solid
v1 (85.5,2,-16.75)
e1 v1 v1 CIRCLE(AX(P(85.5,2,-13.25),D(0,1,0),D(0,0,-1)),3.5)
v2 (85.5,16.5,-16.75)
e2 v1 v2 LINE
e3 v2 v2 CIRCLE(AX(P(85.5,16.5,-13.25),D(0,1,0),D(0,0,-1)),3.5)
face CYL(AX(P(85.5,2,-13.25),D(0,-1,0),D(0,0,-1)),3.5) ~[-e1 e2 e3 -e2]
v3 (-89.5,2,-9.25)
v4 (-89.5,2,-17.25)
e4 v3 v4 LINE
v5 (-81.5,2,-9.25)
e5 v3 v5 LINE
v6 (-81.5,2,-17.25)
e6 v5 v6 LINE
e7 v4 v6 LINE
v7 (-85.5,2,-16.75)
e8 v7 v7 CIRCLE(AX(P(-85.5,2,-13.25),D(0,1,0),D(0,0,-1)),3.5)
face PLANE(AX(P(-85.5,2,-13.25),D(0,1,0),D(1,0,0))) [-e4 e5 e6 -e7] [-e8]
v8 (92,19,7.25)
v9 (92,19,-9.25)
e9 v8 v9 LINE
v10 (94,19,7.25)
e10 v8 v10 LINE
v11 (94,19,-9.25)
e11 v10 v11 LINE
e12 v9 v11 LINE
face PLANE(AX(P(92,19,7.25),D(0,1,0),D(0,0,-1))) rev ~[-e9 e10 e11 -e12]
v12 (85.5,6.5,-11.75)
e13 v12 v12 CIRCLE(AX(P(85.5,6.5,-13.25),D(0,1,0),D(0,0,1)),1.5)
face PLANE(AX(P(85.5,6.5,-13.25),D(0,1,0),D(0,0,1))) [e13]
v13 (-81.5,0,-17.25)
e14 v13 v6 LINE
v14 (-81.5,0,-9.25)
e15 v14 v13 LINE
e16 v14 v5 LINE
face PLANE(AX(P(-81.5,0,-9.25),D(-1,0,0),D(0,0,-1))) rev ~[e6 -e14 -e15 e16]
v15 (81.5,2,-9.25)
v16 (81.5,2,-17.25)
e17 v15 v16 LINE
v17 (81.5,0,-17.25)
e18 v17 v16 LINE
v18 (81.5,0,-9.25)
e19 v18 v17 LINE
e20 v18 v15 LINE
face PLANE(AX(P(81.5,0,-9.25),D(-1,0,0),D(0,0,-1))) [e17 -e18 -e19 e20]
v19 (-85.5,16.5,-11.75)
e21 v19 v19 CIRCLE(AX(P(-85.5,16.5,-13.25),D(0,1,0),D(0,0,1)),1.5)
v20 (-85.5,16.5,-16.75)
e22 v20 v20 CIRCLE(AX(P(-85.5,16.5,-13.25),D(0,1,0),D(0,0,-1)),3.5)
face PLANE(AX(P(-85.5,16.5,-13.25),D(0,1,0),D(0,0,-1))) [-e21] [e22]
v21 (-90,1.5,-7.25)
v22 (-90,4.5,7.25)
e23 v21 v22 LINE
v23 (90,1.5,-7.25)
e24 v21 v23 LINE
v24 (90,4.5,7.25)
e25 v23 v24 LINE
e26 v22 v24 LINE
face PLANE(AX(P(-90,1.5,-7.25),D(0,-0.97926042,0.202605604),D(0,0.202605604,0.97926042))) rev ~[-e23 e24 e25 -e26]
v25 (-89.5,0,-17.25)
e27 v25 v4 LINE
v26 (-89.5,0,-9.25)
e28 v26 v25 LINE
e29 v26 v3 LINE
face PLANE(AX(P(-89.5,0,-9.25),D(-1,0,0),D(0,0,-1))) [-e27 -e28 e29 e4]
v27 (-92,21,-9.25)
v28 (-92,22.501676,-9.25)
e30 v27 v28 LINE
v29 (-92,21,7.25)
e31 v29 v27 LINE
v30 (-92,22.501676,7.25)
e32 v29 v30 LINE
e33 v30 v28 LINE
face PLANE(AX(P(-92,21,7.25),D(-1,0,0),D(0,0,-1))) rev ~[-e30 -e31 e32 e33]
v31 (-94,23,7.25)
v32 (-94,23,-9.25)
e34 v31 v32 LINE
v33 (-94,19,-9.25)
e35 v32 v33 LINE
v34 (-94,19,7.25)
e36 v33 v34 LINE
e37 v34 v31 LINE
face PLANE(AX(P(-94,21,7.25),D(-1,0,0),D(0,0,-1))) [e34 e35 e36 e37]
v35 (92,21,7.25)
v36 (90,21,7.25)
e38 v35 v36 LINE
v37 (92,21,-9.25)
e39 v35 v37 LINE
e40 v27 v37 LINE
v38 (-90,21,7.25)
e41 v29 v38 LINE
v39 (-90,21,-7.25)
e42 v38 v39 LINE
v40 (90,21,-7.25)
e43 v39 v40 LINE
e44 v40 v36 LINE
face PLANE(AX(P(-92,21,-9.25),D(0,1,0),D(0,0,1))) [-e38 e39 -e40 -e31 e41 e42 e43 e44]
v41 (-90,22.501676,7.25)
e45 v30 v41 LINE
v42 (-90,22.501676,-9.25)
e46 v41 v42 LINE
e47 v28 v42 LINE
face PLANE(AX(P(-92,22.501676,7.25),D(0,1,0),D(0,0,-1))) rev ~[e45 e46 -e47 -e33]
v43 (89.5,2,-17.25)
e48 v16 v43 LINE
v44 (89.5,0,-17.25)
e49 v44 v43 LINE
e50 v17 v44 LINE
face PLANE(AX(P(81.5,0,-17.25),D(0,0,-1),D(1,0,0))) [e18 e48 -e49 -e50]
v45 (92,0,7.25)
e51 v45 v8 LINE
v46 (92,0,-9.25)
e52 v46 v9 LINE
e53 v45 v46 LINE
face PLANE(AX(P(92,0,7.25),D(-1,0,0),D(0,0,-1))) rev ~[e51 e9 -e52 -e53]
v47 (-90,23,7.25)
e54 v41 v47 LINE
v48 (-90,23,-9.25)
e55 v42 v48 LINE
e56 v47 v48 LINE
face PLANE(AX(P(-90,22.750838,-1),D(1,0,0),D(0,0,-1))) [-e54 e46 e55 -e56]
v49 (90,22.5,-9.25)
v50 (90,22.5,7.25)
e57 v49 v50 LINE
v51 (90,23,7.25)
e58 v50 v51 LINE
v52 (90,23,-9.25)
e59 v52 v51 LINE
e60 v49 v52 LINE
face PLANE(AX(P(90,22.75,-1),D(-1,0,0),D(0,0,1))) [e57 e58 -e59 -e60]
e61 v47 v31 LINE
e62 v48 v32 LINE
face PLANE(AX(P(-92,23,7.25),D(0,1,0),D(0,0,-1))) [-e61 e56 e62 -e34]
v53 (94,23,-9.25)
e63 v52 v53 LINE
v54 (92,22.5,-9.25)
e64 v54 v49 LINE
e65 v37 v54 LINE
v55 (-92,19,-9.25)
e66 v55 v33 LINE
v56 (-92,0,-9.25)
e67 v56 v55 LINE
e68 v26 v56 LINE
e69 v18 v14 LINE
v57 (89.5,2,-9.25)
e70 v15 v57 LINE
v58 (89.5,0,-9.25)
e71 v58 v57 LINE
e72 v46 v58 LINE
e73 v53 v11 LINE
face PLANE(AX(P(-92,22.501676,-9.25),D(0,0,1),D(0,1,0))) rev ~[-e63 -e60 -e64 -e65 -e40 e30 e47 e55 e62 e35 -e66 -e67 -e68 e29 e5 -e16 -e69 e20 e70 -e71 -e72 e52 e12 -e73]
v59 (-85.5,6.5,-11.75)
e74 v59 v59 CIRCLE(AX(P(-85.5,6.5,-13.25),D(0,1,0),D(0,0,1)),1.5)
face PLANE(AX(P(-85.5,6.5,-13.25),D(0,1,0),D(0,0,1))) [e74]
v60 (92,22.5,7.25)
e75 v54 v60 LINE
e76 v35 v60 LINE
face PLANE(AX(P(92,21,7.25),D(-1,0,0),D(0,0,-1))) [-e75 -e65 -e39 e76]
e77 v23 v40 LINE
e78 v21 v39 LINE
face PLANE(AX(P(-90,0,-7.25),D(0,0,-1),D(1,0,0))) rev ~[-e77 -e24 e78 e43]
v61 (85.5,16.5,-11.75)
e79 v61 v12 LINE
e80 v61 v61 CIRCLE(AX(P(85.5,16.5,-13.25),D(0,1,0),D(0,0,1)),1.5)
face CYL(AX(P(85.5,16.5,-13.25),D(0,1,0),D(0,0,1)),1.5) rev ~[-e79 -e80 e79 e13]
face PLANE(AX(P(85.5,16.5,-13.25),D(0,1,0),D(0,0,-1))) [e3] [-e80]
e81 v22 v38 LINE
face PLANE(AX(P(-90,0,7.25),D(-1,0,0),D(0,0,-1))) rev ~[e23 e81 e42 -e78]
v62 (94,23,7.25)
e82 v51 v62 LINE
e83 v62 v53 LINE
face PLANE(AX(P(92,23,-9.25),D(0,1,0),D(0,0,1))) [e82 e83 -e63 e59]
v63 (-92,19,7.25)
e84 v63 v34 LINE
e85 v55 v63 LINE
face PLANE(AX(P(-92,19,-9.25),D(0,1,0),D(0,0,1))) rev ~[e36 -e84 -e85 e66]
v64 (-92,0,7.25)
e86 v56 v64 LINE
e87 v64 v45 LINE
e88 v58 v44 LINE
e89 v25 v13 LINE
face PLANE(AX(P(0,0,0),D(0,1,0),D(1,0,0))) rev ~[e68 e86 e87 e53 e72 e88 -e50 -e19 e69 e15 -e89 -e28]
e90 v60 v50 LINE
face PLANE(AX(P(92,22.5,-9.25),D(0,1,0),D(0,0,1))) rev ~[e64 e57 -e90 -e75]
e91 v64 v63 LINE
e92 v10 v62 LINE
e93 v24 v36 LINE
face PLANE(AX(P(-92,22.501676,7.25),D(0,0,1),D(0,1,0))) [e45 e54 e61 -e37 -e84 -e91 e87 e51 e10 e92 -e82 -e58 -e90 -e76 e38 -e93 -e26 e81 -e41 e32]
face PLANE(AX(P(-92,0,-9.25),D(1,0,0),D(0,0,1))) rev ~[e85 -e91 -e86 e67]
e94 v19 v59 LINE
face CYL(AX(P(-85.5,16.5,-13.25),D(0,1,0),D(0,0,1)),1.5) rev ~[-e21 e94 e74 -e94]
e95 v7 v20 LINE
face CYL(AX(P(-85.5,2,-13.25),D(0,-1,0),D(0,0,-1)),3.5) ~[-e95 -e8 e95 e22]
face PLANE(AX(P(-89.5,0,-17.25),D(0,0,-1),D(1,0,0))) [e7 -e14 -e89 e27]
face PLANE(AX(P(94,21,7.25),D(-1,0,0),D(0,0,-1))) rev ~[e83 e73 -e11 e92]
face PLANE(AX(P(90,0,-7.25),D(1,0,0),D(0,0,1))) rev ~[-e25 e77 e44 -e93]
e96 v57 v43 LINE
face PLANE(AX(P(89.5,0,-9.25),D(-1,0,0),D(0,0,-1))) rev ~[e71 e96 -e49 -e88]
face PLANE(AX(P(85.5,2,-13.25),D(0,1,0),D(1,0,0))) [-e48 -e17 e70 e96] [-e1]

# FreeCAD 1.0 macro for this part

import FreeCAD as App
import Part
import Sketcher
from FreeCAD import Vector
Q = App.Units.Quantity


def add_polygon(sketch, points):
    """Adds a closed chain of lines whose ends are joined by coincident constraints."""
    first, n = sketch.GeometryCount, len(points)
    for a, b in zip(points, points[1:] + points[:1]):
        sketch.addGeometry(Part.LineSegment(App.Vector(*a, 0), App.Vector(*b, 0)), False)
    for i in range(n):
        sketch.addConstraint(Sketcher.Constraint("Coincident", first + i, 2, first + (i + 1) % n, 1))

doc = App.newDocument("Part")
body = doc.addObject("PartDesign::Body", "Body")

# Sketch on XZ plane
sketch1 = body.newObject("Sketcher::SketchObject", "Sketch")
sketch1.AttachmentSupport = (doc.getObject("XZ_Plane"), [""])
sketch1.MapMode = "FlatFace"
add_polygon(sketch1, [(-90, -7.25), (-90, 7.25), (90, 7.25), (90, -7.25)])  # lines 0-3
sketch1.addConstraint(Sketcher.Constraint("Vertical", 0))
sketch1.addConstraint(Sketcher.Constraint("Horizontal", 1))
sketch1.addConstraint(Sketcher.Constraint("Vertical", 2))
sketch1.addConstraint(Sketcher.Constraint("Horizontal", 3))
sketch1.addConstraint(Sketcher.Constraint("Symmetric", 0, 2, 2, 2, -1, 1))
sketch1.addConstraint(Sketcher.Constraint("DistanceX", 1, 1, 1, 2, Q("180 mm")))
sketch1.addConstraint(Sketcher.Constraint("DistanceY", 0, 1, 0, 2, Q("14.5 mm")))
pad1 = body.newObject("PartDesign::Pad", "Pad")
pad1.Profile = sketch1
pad1.Length = 4.5
pad1.Reversed = True

# Sketch on YZ plane
sketch2 = body.newObject("Sketcher::SketchObject", "Sketch001")
sketch2.AttachmentSupport = (doc.getObject("YZ_Plane"), [""])
sketch2.MapMode = "FlatFace"
sketch2.AttachmentOffset = App.Placement(Vector(0, 0, -90), App.Rotation())
add_polygon(sketch2, [(4.5, -7.25), (1.5, -7.25), (4.5, 7.25)])  # lines 0-2
sketch2.addConstraint(Sketcher.Constraint("Horizontal", 0))
sketch2.addConstraint(Sketcher.Constraint("Vertical", 2))
sketch2.addConstraint(Sketcher.Constraint("DistanceX", 0, 2, 0, 1, Q("3 mm")))
sketch2.addConstraint(Sketcher.Constraint("DistanceY", 2, 2, 2, 1, Q("14.5 mm")))
sketch2.addConstraint(Sketcher.Constraint("DistanceX", -1, 1, 0, 2, Q("1.5 mm")))
sketch2.addConstraint(Sketcher.Constraint("DistanceY", 0, 2, -1, 1, Q("7.25 mm")))
pocket1 = body.newObject("PartDesign::Pocket", "Pocket")
pocket1.Profile = sketch2
pocket1.Type = "ThroughAll"
pocket1.Reversed = True

# Sketch on XZ plane
sketch3 = body.newObject("Sketcher::SketchObject", "Sketch002")
sketch3.AttachmentSupport = (doc.getObject("XZ_Plane"), [""])
sketch3.MapMode = "FlatFace"
add_polygon(sketch3, [(-90, -7.25), (90, -7.25), (90, 7.25), (92, 7.25), (92, -9.25), (-92, -9.25), (-92, 7.25), (-90, 7.25)])  # lines 0-7
sketch3.addConstraint(Sketcher.Constraint("Horizontal", 0))
sketch3.addConstraint(Sketcher.Constraint("Vertical", 1))
sketch3.addConstraint(Sketcher.Constraint("Horizontal", 2))
sketch3.addConstraint(Sketcher.Constraint("Vertical", 3))
sketch3.addConstraint(Sketcher.Constraint("Horizontal", 4))
sketch3.addConstraint(Sketcher.Constraint("Vertical", 5))
sketch3.addConstraint(Sketcher.Constraint("Horizontal", 6))
sketch3.addConstraint(Sketcher.Constraint("Vertical", 7))
sketch3.addConstraint(Sketcher.Constraint("Symmetric", 0, 2, 6, 2, -1, 1))
sketch3.addConstraint(Sketcher.Constraint("Symmetric", 2, 2, 5, 2, -2))
sketch3.addConstraint(Sketcher.Constraint("DistanceX", 0, 1, 0, 2, Q("180 mm")))
sketch3.addConstraint(Sketcher.Constraint("DistanceX", 2, 1, 2, 2, Q("2 mm")))
sketch3.addConstraint(Sketcher.Constraint("DistanceY", 1, 1, 1, 2, Q("14.5 mm")))
sketch3.addConstraint(Sketcher.Constraint("DistanceY", 3, 2, 3, 1, Q("16.5 mm")))
pad2 = body.newObject("PartDesign::Pad", "Pad001")
pad2.Profile = sketch3
pad2.Length = 21
pad2.Reversed = True

# Sketch on XZ plane
sketch4 = body.newObject("Sketcher::SketchObject", "Sketch003")
sketch4.AttachmentSupport = (doc.getObject("XZ_Plane"), [""])
sketch4.MapMode = "FlatFace"
add_polygon(sketch4, [(-89.5, -17.25), (-89.5, -9.25), (-81.5, -9.25), (-81.5, -17.25)])  # lines 0-3
add_polygon(sketch4, [(81.5, -17.25), (81.5, -9.25), (89.5, -9.25), (89.5, -17.25)])  # lines 4-7
sketch4.addConstraint(Sketcher.Constraint("Vertical", 0))
sketch4.addConstraint(Sketcher.Constraint("Horizontal", 1))
sketch4.addConstraint(Sketcher.Constraint("Vertical", 2))
sketch4.addConstraint(Sketcher.Constraint("Horizontal", 3))
sketch4.addConstraint(Sketcher.Constraint("Vertical", 4))
sketch4.addConstraint(Sketcher.Constraint("Horizontal", 5))
sketch4.addConstraint(Sketcher.Constraint("Vertical", 6))
sketch4.addConstraint(Sketcher.Constraint("Horizontal", 7))
sketch4.addConstraint(Sketcher.Constraint("Symmetric", 1, 2, 4, 2, -2))
sketch4.addConstraint(Sketcher.Constraint("Symmetric", 3, 2, 6, 2, -2))
sketch4.addConstraint(Sketcher.Constraint("Equal", 7, 0))
sketch4.addConstraint(Sketcher.Constraint("DistanceX", 1, 1, 1, 2, Q("8 mm")))
sketch4.addConstraint(Sketcher.Constraint("DistanceX", 1, 2, 4, 2, Q("163 mm")))
sketch4.addConstraint(Sketcher.Constraint("DistanceY", 0, 2, -1, 1, Q("9.25 mm")))
pad3 = body.newObject("PartDesign::Pad", "Pad002")
pad3.Profile = sketch4
pad3.Length = 2
pad3.Reversed = True

# Sketch on XZ plane
sketch5 = body.newObject("Sketcher::SketchObject", "Sketch004")
sketch5.AttachmentSupport = (doc.getObject("XZ_Plane"), [""])
sketch5.MapMode = "FlatFace"
sketch5.AttachmentOffset = App.Placement(Vector(0, 0, -2), App.Rotation())
sketch5.addGeometry(Part.Circle(Vector(-85.5, -13.25, 0), Vector(0, 0, 1), 3.5), False)
sketch5.addGeometry(Part.Circle(Vector(85.5, -13.25, 0), Vector(0, 0, 1), 3.5), False)
sketch5.addConstraint(Sketcher.Constraint("Equal", 0, 1))
sketch5.addConstraint(Sketcher.Constraint("Symmetric", 0, 3, 1, 3, -2))
sketch5.addConstraint(Sketcher.Constraint("Diameter", 0, Q("7 mm")))
sketch5.addConstraint(Sketcher.Constraint("DistanceX", 0, 3, 1, 3, Q("171 mm")))
sketch5.addConstraint(Sketcher.Constraint("DistanceY", 0, 3, -1, 1, Q("13.25 mm")))
pad4 = body.newObject("PartDesign::Pad", "Pad003")
pad4.Profile = sketch5
pad4.Length = 14.5
pad4.Reversed = True

# Sketch on XZ plane
sketch6 = body.newObject("Sketcher::SketchObject", "Sketch005")
sketch6.AttachmentSupport = (doc.getObject("XZ_Plane"), [""])
sketch6.MapMode = "FlatFace"
sketch6.AttachmentOffset = App.Placement(Vector(0, 0, -16.5), App.Rotation())
sketch6.addGeometry(Part.Circle(Vector(85.5, -13.25, 0), Vector(0, 0, 1), 1.5), False)
sketch6.addGeometry(Part.Circle(Vector(-85.5, -13.25, 0), Vector(0, 0, 1), 1.5), False)
sketch6.addConstraint(Sketcher.Constraint("Equal", 0, 1))
sketch6.addConstraint(Sketcher.Constraint("Symmetric", 0, 3, 1, 3, -2))
sketch6.addConstraint(Sketcher.Constraint("Diameter", 0, Q("3 mm")))
sketch6.addConstraint(Sketcher.Constraint("DistanceX", 1, 3, 0, 3, Q("171 mm")))
sketch6.addConstraint(Sketcher.Constraint("DistanceY", 0, 3, -1, 1, Q("13.25 mm")))
pocket2 = body.newObject("PartDesign::Pocket", "Pocket001")
pocket2.Profile = sketch6
pocket2.Length = 10
pocket2.Reversed = True

# Sketch on YZ plane
sketch7 = body.newObject("Sketcher::SketchObject", "Sketch006")
sketch7.AttachmentSupport = (doc.getObject("YZ_Plane"), [""])
sketch7.MapMode = "FlatFace"
sketch7.AttachmentOffset = App.Placement(Vector(0, 0, 92), App.Rotation())
add_polygon(sketch7, [(21, 7.25), (19, 7.25), (19, -9.25), (21, -9.25)])  # lines 0-3
sketch7.addConstraint(Sketcher.Constraint("Horizontal", 0))
sketch7.addConstraint(Sketcher.Constraint("Vertical", 1))
sketch7.addConstraint(Sketcher.Constraint("Horizontal", 2))
sketch7.addConstraint(Sketcher.Constraint("Vertical", 3))
sketch7.addConstraint(Sketcher.Constraint("DistanceX", 0, 2, 0, 1, Q("2 mm")))
sketch7.addConstraint(Sketcher.Constraint("DistanceY", 1, 2, 1, 1, Q("16.5 mm")))
sketch7.addConstraint(Sketcher.Constraint("DistanceX", -1, 1, 0, 2, Q("19 mm")))
sketch7.addConstraint(Sketcher.Constraint("DistanceY", -1, 1, 0, 2, Q("7.25 mm")))
pad5 = body.newObject("PartDesign::Pad", "Pad004")
pad5.Profile = sketch7
pad5.Length = 2

# Sketch on XZ plane
sketch8 = body.newObject("Sketcher::SketchObject", "Sketch007")
sketch8.AttachmentSupport = (doc.getObject("XZ_Plane"), [""])
sketch8.MapMode = "FlatFace"
sketch8.AttachmentOffset = App.Placement(Vector(0, 0, -21), App.Rotation())
add_polygon(sketch8, [(92, -9.25), (92, 7.25), (94, 7.25), (94, -9.25)])  # lines 0-3
sketch8.addConstraint(Sketcher.Constraint("Vertical", 0))
sketch8.addConstraint(Sketcher.Constraint("Horizontal", 1))
sketch8.addConstraint(Sketcher.Constraint("Vertical", 2))
sketch8.addConstraint(Sketcher.Constraint("Horizontal", 3))
sketch8.addConstraint(Sketcher.Constraint("DistanceX", 1, 1, 1, 2, Q("2 mm")))
sketch8.addConstraint(Sketcher.Constraint("DistanceY", 0, 1, 0, 2, Q("16.5 mm")))
sketch8.addConstraint(Sketcher.Constraint("DistanceX", -1, 1, 0, 2, Q("92 mm")))
sketch8.addConstraint(Sketcher.Constraint("DistanceY", -1, 1, 0, 2, Q("7.25 mm")))
pad6 = body.newObject("PartDesign::Pad", "Pad005")
pad6.Profile = sketch8
pad6.Length = 2
pad6.Reversed = True

# Sketch on YZ plane
sketch9 = body.newObject("Sketcher::SketchObject", "Sketch008")
sketch9.AttachmentSupport = (doc.getObject("YZ_Plane"), [""])
sketch9.MapMode = "FlatFace"
sketch9.AttachmentOffset = App.Placement(Vector(0, 0, 92), App.Rotation())
add_polygon(sketch9, [(23, -9.25), (22.5, -9.25), (22.5, 7.25), (23, 7.25)])  # lines 0-3
sketch9.addConstraint(Sketcher.Constraint("Horizontal", 0))
sketch9.addConstraint(Sketcher.Constraint("Vertical", 1))
sketch9.addConstraint(Sketcher.Constraint("Horizontal", 2))
sketch9.addConstraint(Sketcher.Constraint("Vertical", 3))
sketch9.addConstraint(Sketcher.Constraint("DistanceX", 0, 2, 0, 1, Q("0.5 mm")))
sketch9.addConstraint(Sketcher.Constraint("DistanceY", 1, 1, 1, 2, Q("16.5 mm")))
sketch9.addConstraint(Sketcher.Constraint("DistanceX", -1, 1, 2, 2, Q("23 mm")))
sketch9.addConstraint(Sketcher.Constraint("DistanceY", 0, 2, -1, 1, Q("9.25 mm")))
pad7 = body.newObject("PartDesign::Pad", "Pad006")
pad7.Profile = sketch9
pad7.Length = 2
pad7.Reversed = True

# Sketch on YZ plane
sketch10 = body.newObject("Sketcher::SketchObject", "Sketch009")
sketch10.AttachmentSupport = (doc.getObject("YZ_Plane"), [""])
sketch10.MapMode = "FlatFace"
sketch10.AttachmentOffset = App.Placement(Vector(0, 0, -92), App.Rotation())
add_polygon(sketch10, [(21, -9.25), (19, -9.25), (19, 7.25), (21, 7.25)])  # lines 0-3
sketch10.addConstraint(Sketcher.Constraint("Horizontal", 0))
sketch10.addConstraint(Sketcher.Constraint("Vertical", 1))
sketch10.addConstraint(Sketcher.Constraint("Horizontal", 2))
sketch10.addConstraint(Sketcher.Constraint("Vertical", 3))
sketch10.addConstraint(Sketcher.Constraint("DistanceX", 0, 2, 0, 1, Q("2 mm")))
sketch10.addConstraint(Sketcher.Constraint("DistanceY", 1, 1, 1, 2, Q("16.5 mm")))
sketch10.addConstraint(Sketcher.Constraint("DistanceX", -1, 1, 0, 2, Q("19 mm")))
sketch10.addConstraint(Sketcher.Constraint("DistanceY", 0, 2, -1, 1, Q("9.25 mm")))
pad8 = body.newObject("PartDesign::Pad", "Pad007")
pad8.Profile = sketch10
pad8.Length = 2
pad8.Reversed = True

# Sketch on XZ plane
sketch11 = body.newObject("Sketcher::SketchObject", "Sketch010")
sketch11.AttachmentSupport = (doc.getObject("XZ_Plane"), [""])
sketch11.MapMode = "FlatFace"
sketch11.AttachmentOffset = App.Placement(Vector(0, 0, -21), App.Rotation())
add_polygon(sketch11, [(-94, -9.25), (-94, 7.25), (-92, 7.25), (-92, -9.25)])  # lines 0-3
sketch11.addConstraint(Sketcher.Constraint("Vertical", 0))
sketch11.addConstraint(Sketcher.Constraint("Horizontal", 1))
sketch11.addConstraint(Sketcher.Constraint("Vertical", 2))
sketch11.addConstraint(Sketcher.Constraint("Horizontal", 3))
sketch11.addConstraint(Sketcher.Constraint("DistanceX", 1, 1, 1, 2, Q("2 mm")))
sketch11.addConstraint(Sketcher.Constraint("DistanceY", 0, 1, 0, 2, Q("16.5 mm")))
sketch11.addConstraint(Sketcher.Constraint("DistanceX", 0, 2, -1, 1, Q("94 mm")))
sketch11.addConstraint(Sketcher.Constraint("DistanceY", -1, 1, 0, 2, Q("7.25 mm")))
pad9 = body.newObject("PartDesign::Pad", "Pad008")
pad9.Profile = sketch11
pad9.Length = 2
pad9.Reversed = True

# Sketch on YZ plane
sketch12 = body.newObject("Sketcher::SketchObject", "Sketch011")
sketch12.AttachmentSupport = (doc.getObject("YZ_Plane"), [""])
sketch12.MapMode = "FlatFace"
sketch12.AttachmentOffset = App.Placement(Vector(0, 0, -92), App.Rotation())
add_polygon(sketch12, [(23, 7.25), (22.501676, 7.25), (22.501676, -9.25), (23, -9.25)])  # lines 0-3
sketch12.addConstraint(Sketcher.Constraint("Horizontal", 0))
sketch12.addConstraint(Sketcher.Constraint("Vertical", 1))
sketch12.addConstraint(Sketcher.Constraint("Horizontal", 2))
sketch12.addConstraint(Sketcher.Constraint("Vertical", 3))
sketch12.addConstraint(Sketcher.Constraint("DistanceY", 1, 2, 1, 1, Q("16.5 mm")))
sketch12.addConstraint(Sketcher.Constraint("DistanceX", -1, 1, 2, 2, Q("23 mm")))
sketch12.addConstraint(Sketcher.Constraint("DistanceY", -1, 1, 0, 2, Q("7.25 mm")))
sketch12.addConstraint(Sketcher.Constraint("DistanceX", 0, 2, 0, 1, Q("0.498324 mm")))
pad10 = body.newObject("PartDesign::Pad", "Pad009")
pad10.Profile = sketch12
pad10.Length = 2

doc.recompute()
